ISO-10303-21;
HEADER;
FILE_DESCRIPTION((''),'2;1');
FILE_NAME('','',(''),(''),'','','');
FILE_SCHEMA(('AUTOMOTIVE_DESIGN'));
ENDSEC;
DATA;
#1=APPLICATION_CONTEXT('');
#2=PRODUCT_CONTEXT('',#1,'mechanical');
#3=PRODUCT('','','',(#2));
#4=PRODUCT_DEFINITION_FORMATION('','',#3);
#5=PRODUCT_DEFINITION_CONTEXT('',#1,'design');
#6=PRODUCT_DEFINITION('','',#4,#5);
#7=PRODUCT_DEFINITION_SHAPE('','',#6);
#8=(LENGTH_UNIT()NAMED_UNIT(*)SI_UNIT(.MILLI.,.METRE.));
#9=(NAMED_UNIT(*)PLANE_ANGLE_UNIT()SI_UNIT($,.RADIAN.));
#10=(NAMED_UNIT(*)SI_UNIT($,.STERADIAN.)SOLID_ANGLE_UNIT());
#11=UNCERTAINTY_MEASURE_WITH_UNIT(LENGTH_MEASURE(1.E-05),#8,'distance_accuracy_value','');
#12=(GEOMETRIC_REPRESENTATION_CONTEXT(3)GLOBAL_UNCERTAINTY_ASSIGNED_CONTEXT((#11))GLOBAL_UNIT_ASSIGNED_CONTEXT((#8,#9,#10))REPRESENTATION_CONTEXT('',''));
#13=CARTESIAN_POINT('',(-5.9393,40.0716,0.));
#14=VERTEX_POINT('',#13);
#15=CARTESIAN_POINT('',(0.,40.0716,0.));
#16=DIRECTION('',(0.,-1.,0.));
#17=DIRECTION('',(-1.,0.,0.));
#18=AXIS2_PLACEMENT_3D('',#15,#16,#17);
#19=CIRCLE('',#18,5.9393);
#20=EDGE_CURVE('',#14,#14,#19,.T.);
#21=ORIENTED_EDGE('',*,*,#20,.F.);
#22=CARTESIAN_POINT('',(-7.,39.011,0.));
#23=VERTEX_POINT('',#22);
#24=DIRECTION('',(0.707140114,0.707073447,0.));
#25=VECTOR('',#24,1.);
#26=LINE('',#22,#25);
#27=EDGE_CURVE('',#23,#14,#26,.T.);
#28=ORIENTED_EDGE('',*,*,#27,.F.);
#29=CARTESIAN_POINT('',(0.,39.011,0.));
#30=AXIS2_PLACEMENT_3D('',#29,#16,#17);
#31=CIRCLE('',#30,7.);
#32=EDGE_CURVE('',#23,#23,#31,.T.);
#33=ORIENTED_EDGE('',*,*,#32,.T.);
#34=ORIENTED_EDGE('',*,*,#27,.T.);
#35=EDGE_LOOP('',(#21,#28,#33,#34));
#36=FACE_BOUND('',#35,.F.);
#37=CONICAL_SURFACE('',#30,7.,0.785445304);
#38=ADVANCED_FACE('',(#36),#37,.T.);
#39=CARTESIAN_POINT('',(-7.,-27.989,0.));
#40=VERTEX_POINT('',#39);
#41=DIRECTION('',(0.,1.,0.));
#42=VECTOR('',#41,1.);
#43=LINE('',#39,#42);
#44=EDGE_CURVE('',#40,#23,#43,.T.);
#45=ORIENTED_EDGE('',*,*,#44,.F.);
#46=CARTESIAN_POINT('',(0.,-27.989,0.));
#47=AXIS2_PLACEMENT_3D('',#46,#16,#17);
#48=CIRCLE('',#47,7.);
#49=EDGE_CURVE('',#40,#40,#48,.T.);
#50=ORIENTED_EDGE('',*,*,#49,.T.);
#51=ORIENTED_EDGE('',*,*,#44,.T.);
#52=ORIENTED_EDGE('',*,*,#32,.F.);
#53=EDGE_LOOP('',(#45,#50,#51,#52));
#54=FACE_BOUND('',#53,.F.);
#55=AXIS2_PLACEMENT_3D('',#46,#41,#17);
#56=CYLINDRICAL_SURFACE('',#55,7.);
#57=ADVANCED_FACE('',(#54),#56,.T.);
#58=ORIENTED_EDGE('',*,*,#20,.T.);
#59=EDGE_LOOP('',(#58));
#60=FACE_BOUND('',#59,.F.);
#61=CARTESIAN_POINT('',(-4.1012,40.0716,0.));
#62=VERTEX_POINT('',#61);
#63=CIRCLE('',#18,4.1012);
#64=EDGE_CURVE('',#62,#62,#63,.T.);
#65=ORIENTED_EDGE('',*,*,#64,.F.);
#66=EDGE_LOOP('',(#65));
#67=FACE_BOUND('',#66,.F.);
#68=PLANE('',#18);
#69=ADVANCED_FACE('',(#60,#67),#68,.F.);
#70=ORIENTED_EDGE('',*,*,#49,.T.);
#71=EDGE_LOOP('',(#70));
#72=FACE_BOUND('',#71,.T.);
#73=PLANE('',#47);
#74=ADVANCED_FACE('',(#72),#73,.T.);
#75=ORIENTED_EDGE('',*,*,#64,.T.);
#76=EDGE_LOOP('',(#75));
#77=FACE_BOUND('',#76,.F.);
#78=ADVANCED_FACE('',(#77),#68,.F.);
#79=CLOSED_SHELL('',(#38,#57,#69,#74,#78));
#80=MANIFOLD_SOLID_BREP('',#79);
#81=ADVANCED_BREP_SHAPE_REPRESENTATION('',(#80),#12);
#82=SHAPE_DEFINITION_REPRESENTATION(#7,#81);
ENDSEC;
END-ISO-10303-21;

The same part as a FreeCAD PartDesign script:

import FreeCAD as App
import Part
import Sketcher

V = App.Vector


def add_polygon(sketch, points):
    """Adds a closed chain of lines whose ends are joined by coincident constraints."""
    first, n = sketch.GeometryCount, len(points)
    for a, b in zip(points, points[1:] + points[:1]):
        sketch.addGeometry(Part.LineSegment(App.Vector(*a, 0), App.Vector(*b, 0)), False)
    for i in range(n):
        sketch.addConstraint(Sketcher.Constraint("Coincident", first + i, 2, first + (i + 1) % n, 1))

doc = App.newDocument("Part")
body = doc.addObject("PartDesign::Body", "Body")

# Sketch on XY plane
sketch1 = body.newObject("Sketcher::SketchObject", "Sketch")
sketch1.AttachmentSupport = (doc.getObject("XY_Plane"), [""])
sketch1.MapMode = "FlatFace"
add_polygon(sketch1, [(-7, 39), (-7, -28), (0, -28), (0, 40.1), (-5.9, 40.1)])  # lines 0-4
sketch1.addConstraint(Sketcher.Constraint("Vertical", 0))
sketch1.addConstraint(Sketcher.Constraint("Horizontal", 1))
sketch1.addConstraint(Sketcher.Constraint("Vertical", 2))
sketch1.addConstraint(Sketcher.Constraint("Horizontal", 3))
sketch1.addConstraint(Sketcher.Constraint("PointOnObject", 1, 2, -2))
sketch1.addConstraint(Sketcher.Constraint("DistanceY", 0, 2, 0, 1, 67.0))
sketch1.addConstraint(Sketcher.Constraint("Distance", 4, 1.5))
sketch1.addConstraint(Sketcher.Constraint("DistanceX", 1, 1, 1, 2, 7.0))
sketch1.addConstraint(Sketcher.Constraint("DistanceX", 3, 2, 3, 1, 5.9393))
sketch1.addConstraint(Sketcher.Constraint("DistanceY", 0, 2, -1, 1, 27.989))
revolution = body.newObject("PartDesign::Revolution", "Revolution")
revolution.Profile = sketch1
revolution.ReferenceAxis = (sketch1, ["V_Axis"])
revolution.Angle = 360

doc.recompute()
